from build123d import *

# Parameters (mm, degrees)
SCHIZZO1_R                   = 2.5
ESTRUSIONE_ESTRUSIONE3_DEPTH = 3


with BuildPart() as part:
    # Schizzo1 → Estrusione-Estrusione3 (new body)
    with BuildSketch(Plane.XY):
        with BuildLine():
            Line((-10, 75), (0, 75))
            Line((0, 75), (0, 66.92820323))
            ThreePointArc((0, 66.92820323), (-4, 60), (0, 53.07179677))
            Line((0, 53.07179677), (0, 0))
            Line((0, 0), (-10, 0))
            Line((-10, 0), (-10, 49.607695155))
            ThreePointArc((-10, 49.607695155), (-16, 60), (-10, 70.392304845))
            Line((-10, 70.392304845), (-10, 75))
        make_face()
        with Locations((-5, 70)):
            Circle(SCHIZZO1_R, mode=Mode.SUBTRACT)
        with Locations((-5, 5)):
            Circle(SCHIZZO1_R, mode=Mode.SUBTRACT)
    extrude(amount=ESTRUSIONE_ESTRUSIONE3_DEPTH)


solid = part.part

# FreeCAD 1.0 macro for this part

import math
import FreeCAD as App
import Part
import Sketcher
from FreeCAD import Vector

doc = App.newDocument("Part")
body = doc.addObject("PartDesign::Body", "Body")

sketch1 = body.newObject("Sketcher::SketchObject", "Sketch")
sketch1.AttachmentSupport = (doc.getObject("XY_Plane"), [""])
sketch1.MapMode = "FlatFace"
sketch1.addGeometry([
    Part.LineSegment(Vector(0, 75, 0), Vector(-10, 75, 0)),
    Part.LineSegment(Vector(-10, 75, 0), Vector(-10, 70.4, 0)),
    Part.ArcOfCircle(Part.Circle(Vector(-4, 60, 0), Vector(0, 0, 1), 12), math.radians(120), math.radians(240)),
    Part.LineSegment(Vector(-10, 49.6, 0), Vector(-10, 0, 0)),
    Part.LineSegment(Vector(-10, 0, 0), Vector(0, 0, 0)),
    Part.LineSegment(Vector(0, 0, 0), Vector(0, 53.1, 0)),
    Part.ArcOfCircle(Part.Circle(Vector(4, 60, 0), Vector(0, 0, 1), 8), math.radians(120), math.radians(240)),
    Part.LineSegment(Vector(0, 66.9, 0), Vector(0, 75, 0)),
    Part.Circle(Vector(-5, 5, 0), Vector(0, 0, 1), 2.5),
    Part.Circle(Vector(-5, 70, 0), Vector(0, 0, 1), 2.5),
], False)
sketch1.addConstraint([
    Sketcher.Constraint("Coincident", 0, 2, 1, 1),
    Sketcher.Constraint("Coincident", 1, 2, 2, 1),
    Sketcher.Constraint("Coincident", 2, 2, 3, 1),
    Sketcher.Constraint("Coincident", 3, 2, 4, 1),
    Sketcher.Constraint("Coincident", 4, 2, 5, 1),
    Sketcher.Constraint("Coincident", 5, 2, 6, 2),
    Sketcher.Constraint("Coincident", 6, 1, 7, 1),
    Sketcher.Constraint("Coincident", 7, 2, 0, 1),
    Sketcher.Constraint("Horizontal", 0),
    Sketcher.Constraint("Vertical", 1),
    Sketcher.Constraint("Vertical", 3),
    Sketcher.Constraint("Horizontal", 4),
    Sketcher.Constraint("Vertical", 5),
    Sketcher.Constraint("Vertical", 7),
    Sketcher.Constraint("Coincident", 4, 2, -1, 1),
    Sketcher.Constraint("Equal", 8, 9),
    Sketcher.Constraint("Symmetric", 2, 3, 6, 3, -2),
    Sketcher.Constraint("PointOnObject", 6, 1, -2),
    Sketcher.Constraint("Vertical", 8, 3, 9, 3),
    Sketcher.Constraint("Vertical", 1, 2, 2, 2),
    Sketcher.Constraint("Diameter", 8, 5.0),
    Sketcher.Constraint("Radius", 2, 12.0),
    Sketcher.Constraint("Radius", 6, 8.0),
    Sketcher.Constraint("DistanceX", 0, 2, 0, 1, 10.0),
    Sketcher.Constraint("DistanceX", 2, 3, -1, 1, 4.0),
    Sketcher.Constraint("DistanceY", -1, 1, 2, 3, 60.0),
    Sketcher.Constraint("DistanceX", 8, 3, -1, 1, 5.0),
    Sketcher.Constraint("DistanceY", -1, 1, 8, 3, 5.0),
    Sketcher.Constraint("DistanceY", -1, 1, 9, 3, 70.0),
    Sketcher.Constraint("DistanceY", -1, 1, 0, 2, 75.0),
])
pad1 = body.newObject("PartDesign::Pad", "Pad")
pad1.Profile = sketch1
pad1.Length = 3

doc.recompute()
